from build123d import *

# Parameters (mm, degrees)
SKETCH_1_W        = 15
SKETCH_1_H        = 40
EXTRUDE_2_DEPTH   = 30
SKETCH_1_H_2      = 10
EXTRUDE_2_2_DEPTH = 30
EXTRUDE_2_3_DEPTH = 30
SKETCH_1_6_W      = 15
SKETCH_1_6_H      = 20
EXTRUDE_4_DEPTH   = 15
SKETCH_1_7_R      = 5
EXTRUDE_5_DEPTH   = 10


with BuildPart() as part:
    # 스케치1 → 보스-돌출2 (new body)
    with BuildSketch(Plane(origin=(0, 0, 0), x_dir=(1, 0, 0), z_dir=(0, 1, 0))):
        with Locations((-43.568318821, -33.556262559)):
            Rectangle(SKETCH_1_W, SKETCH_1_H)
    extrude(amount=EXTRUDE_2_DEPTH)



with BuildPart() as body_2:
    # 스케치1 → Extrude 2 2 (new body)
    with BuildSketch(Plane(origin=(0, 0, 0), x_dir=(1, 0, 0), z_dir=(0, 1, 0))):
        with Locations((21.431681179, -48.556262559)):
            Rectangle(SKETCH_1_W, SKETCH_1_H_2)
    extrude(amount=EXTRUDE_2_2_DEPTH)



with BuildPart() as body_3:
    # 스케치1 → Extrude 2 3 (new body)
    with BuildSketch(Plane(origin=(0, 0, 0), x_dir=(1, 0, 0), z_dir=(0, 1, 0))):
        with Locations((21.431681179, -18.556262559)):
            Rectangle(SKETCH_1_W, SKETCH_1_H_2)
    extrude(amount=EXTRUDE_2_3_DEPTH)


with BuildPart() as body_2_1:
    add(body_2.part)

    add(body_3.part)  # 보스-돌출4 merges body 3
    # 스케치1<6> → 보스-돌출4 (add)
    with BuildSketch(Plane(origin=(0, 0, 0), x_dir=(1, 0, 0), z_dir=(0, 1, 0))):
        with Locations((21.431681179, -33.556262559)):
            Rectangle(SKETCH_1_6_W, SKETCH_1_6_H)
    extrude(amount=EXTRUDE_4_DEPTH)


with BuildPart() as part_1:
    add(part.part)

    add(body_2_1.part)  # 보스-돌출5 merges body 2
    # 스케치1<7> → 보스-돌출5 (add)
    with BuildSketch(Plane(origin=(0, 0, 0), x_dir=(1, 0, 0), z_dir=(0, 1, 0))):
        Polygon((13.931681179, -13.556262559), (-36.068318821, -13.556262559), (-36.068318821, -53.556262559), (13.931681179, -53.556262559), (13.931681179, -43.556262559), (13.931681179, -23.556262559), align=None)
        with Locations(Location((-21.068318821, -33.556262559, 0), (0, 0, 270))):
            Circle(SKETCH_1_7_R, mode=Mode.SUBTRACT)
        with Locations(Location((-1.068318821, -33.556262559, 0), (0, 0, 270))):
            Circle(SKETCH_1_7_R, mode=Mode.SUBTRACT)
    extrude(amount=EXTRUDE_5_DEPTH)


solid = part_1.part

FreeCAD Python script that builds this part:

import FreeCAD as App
import Part
import Sketcher
from FreeCAD import Vector

doc = App.newDocument("Part")
body = doc.addObject("PartDesign::Body", "Body")

# Sketch on XZ plane
sketch1 = doc.addObject("Sketcher::SketchObject", "Sketch")
body.addObject(sketch1)
sketch1.AttachmentSupport = (doc.XZ_Plane, [""])
sketch1.MapMode = "FlatFace"
sketch1.addGeometry(Part.LineSegment(Vector(-51, 14, 0), Vector(-51, 54, 0)), False)
sketch1.addGeometry(Part.LineSegment(Vector(-51, 54, 0), Vector(-36, 54, 0)), False)
sketch1.addGeometry(Part.LineSegment(Vector(-36, 54, 0), Vector(-36, 14, 0)), False)
sketch1.addGeometry(Part.LineSegment(Vector(-36, 14, 0), Vector(-51, 14, 0)), False)
sketch1.addConstraint(Sketcher.Constraint("Coincident", 0, 2, 1, 1))
sketch1.addConstraint(Sketcher.Constraint("Coincident", 1, 2, 2, 1))
sketch1.addConstraint(Sketcher.Constraint("Coincident", 2, 2, 3, 1))
sketch1.addConstraint(Sketcher.Constraint("Coincident", 3, 2, 0, 1))
sketch1.addConstraint(Sketcher.Constraint("Vertical", 0))
sketch1.addConstraint(Sketcher.Constraint("Horizontal", 1))
sketch1.addConstraint(Sketcher.Constraint("Vertical", 2))
sketch1.addConstraint(Sketcher.Constraint("Horizontal", 3))
sketch1.addConstraint(Sketcher.Constraint("DistanceX", 1, 1, 1, 2, 15.0))
sketch1.addConstraint(Sketcher.Constraint("DistanceY", 0, 1, 0, 2, 40.0))
sketch1.addConstraint(Sketcher.Constraint("DistanceX", 0, 2, -1, 1, 51.068319))
sketch1.addConstraint(Sketcher.Constraint("DistanceY", -1, 1, 0, 2, 53.556263))
pad1 = doc.addObject("PartDesign::Pad", "Pad")
body.addObject(pad1)
pad1.Profile = sketch1
pad1.Length = 30
pad1.Reversed = True
body2 = doc.addObject("PartDesign::Body", "Body001")

# Sketch on XZ plane
sketch2 = doc.addObject("Sketcher::SketchObject", "Sketch001")
body2.addObject(sketch2)
sketch2.AttachmentSupport = (doc.getObject("XZ_Plane001"), [""])
sketch2.MapMode = "FlatFace"
sketch2.addGeometry(Part.LineSegment(Vector(14, 44, 0), Vector(14, 54, 0)), False)
sketch2.addGeometry(Part.LineSegment(Vector(14, 54, 0), Vector(29, 54, 0)), False)
sketch2.addGeometry(Part.LineSegment(Vector(29, 54, 0), Vector(29, 44, 0)), False)
sketch2.addGeometry(Part.LineSegment(Vector(29, 44, 0), Vector(14, 44, 0)), False)
sketch2.addConstraint(Sketcher.Constraint("Coincident", 0, 2, 1, 1))
sketch2.addConstraint(Sketcher.Constraint("Coincident", 1, 2, 2, 1))
sketch2.addConstraint(Sketcher.Constraint("Coincident", 2, 2, 3, 1))
sketch2.addConstraint(Sketcher.Constraint("Coincident", 3, 2, 0, 1))
sketch2.addConstraint(Sketcher.Constraint("Vertical", 0))
sketch2.addConstraint(Sketcher.Constraint("Horizontal", 1))
sketch2.addConstraint(Sketcher.Constraint("Vertical", 2))
sketch2.addConstraint(Sketcher.Constraint("Horizontal", 3))
sketch2.addConstraint(Sketcher.Constraint("DistanceX", 1, 1, 1, 2, 15.0))
sketch2.addConstraint(Sketcher.Constraint("DistanceY", 0, 1, 0, 2, 10.0))
sketch2.addConstraint(Sketcher.Constraint("DistanceX", -1, 1, 0, 2, 13.931681))
sketch2.addConstraint(Sketcher.Constraint("DistanceY", -1, 1, 0, 2, 53.556263))
pad2 = doc.addObject("PartDesign::Pad", "Pad001")
body2.addObject(pad2)
pad2.Profile = sketch2
pad2.Length = 30
pad2.Reversed = True
body3 = doc.addObject("PartDesign::Body", "Body002")

# Sketch on XZ plane
sketch3 = doc.addObject("Sketcher::SketchObject", "Sketch002")
body3.addObject(sketch3)
sketch3.AttachmentSupport = (doc.getObject("XZ_Plane002"), [""])
sketch3.MapMode = "FlatFace"
sketch3.addGeometry(Part.LineSegment(Vector(14, 14, 0), Vector(14, 24, 0)), False)
sketch3.addGeometry(Part.LineSegment(Vector(14, 24, 0), Vector(29, 24, 0)), False)
sketch3.addGeometry(Part.LineSegment(Vector(29, 24, 0), Vector(29, 14, 0)), False)
sketch3.addGeometry(Part.LineSegment(Vector(29, 14, 0), Vector(14, 14, 0)), False)
sketch3.addConstraint(Sketcher.Constraint("Coincident", 0, 2, 1, 1))
sketch3.addConstraint(Sketcher.Constraint("Coincident", 1, 2, 2, 1))
sketch3.addConstraint(Sketcher.Constraint("Coincident", 2, 2, 3, 1))
sketch3.addConstraint(Sketcher.Constraint("Coincident", 3, 2, 0, 1))
sketch3.addConstraint(Sketcher.Constraint("Vertical", 0))
sketch3.addConstraint(Sketcher.Constraint("Horizontal", 1))
sketch3.addConstraint(Sketcher.Constraint("Vertical", 2))
sketch3.addConstraint(Sketcher.Constraint("Horizontal", 3))
sketch3.addConstraint(Sketcher.Constraint("DistanceX", 1, 1, 1, 2, 15.0))
sketch3.addConstraint(Sketcher.Constraint("DistanceY", 0, 1, 0, 2, 10.0))
sketch3.addConstraint(Sketcher.Constraint("DistanceX", -1, 1, 0, 2, 13.931681))
sketch3.addConstraint(Sketcher.Constraint("DistanceY", -1, 1, 0, 2, 23.556263))
pad3 = doc.addObject("PartDesign::Pad", "Pad002")
body3.addObject(pad3)
pad3.Profile = sketch3
pad3.Length = 30
pad3.Reversed = True
body2.AllowCompound = True
doc.recompute()

boolean = doc.addObject("PartDesign::Boolean", "Boolean")
body2.addObject(boolean)
boolean.Type = "Fuse"
boolean.addObjects([body3])

# Sketch on XZ plane
sketch4 = doc.addObject("Sketcher::SketchObject", "Sketch003")
body2.addObject(sketch4)
sketch4.AttachmentSupport = (doc.getObject("XZ_Plane001"), [""])
sketch4.MapMode = "FlatFace"
sketch4.addGeometry(Part.LineSegment(Vector(14, 24, 0), Vector(14, 44, 0)), False)
sketch4.addGeometry(Part.LineSegment(Vector(14, 44, 0), Vector(29, 44, 0)), False)
sketch4.addGeometry(Part.LineSegment(Vector(29, 44, 0), Vector(29, 24, 0)), False)
sketch4.addGeometry(Part.LineSegment(Vector(29, 24, 0), Vector(14, 24, 0)), False)
sketch4.addConstraint(Sketcher.Constraint("Coincident", 0, 2, 1, 1))
sketch4.addConstraint(Sketcher.Constraint("Coincident", 1, 2, 2, 1))
sketch4.addConstraint(Sketcher.Constraint("Coincident", 2, 2, 3, 1))
sketch4.addConstraint(Sketcher.Constraint("Coincident", 3, 2, 0, 1))
sketch4.addConstraint(Sketcher.Constraint("Vertical", 0))
sketch4.addConstraint(Sketcher.Constraint("Horizontal", 1))
sketch4.addConstraint(Sketcher.Constraint("Vertical", 2))
sketch4.addConstraint(Sketcher.Constraint("Horizontal", 3))
sketch4.addConstraint(Sketcher.Constraint("DistanceX", 1, 1, 1, 2, 15.0))
sketch4.addConstraint(Sketcher.Constraint("DistanceY", 0, 1, 0, 2, 20.0))
sketch4.addConstraint(Sketcher.Constraint("DistanceX", -1, 1, 0, 2, 13.931681))
sketch4.addConstraint(Sketcher.Constraint("DistanceY", -1, 1, 0, 2, 43.556263))
pad4 = doc.addObject("PartDesign::Pad", "Pad003")
body2.addObject(pad4)
pad4.Profile = sketch4
pad4.Length = 15
pad4.Reversed = True
body.AllowCompound = True
doc.recompute()

boolean2 = doc.addObject("PartDesign::Boolean", "Boolean001")
body.addObject(boolean2)
boolean2.Type = "Fuse"
boolean2.addObjects([body2])

# Sketch on XZ plane
sketch5 = doc.addObject("Sketcher::SketchObject", "Sketch004")
body.addObject(sketch5)
sketch5.AttachmentSupport = (doc.XZ_Plane, [""])
sketch5.MapMode = "FlatFace"
sketch5.addGeometry(Part.LineSegment(Vector(14, 14, 0), Vector(-36, 14, 0)), False)
sketch5.addGeometry(Part.LineSegment(Vector(-36, 14, 0), Vector(-36, 54, 0)), False)
sketch5.addGeometry(Part.LineSegment(Vector(-36, 54, 0), Vector(14, 54, 0)), False)
sketch5.addGeometry(Part.LineSegment(Vector(14, 54, 0), Vector(14, 14, 0)), False)
sketch5.addGeometry(Part.Circle(Vector(-21, 34, 0), Vector(0, 0, 1), 5), False)
sketch5.addGeometry(Part.Circle(Vector(-1, 34, 0), Vector(0, 0, 1), 5), False)
sketch5.addConstraint(Sketcher.Constraint("Coincident", 0, 2, 1, 1))
sketch5.addConstraint(Sketcher.Constraint("Coincident", 1, 2, 2, 1))
sketch5.addConstraint(Sketcher.Constraint("Coincident", 2, 2, 3, 1))
sketch5.addConstraint(Sketcher.Constraint("Coincident", 3, 2, 0, 1))
sketch5.addConstraint(Sketcher.Constraint("Horizontal", 0))
sketch5.addConstraint(Sketcher.Constraint("Vertical", 1))
sketch5.addConstraint(Sketcher.Constraint("Horizontal", 2))
sketch5.addConstraint(Sketcher.Constraint("Vertical", 3))
sketch5.addConstraint(Sketcher.Constraint("Equal", 4, 5))
sketch5.addConstraint(Sketcher.Constraint("Horizontal", 4, 3, 5, 3))
sketch5.addConstraint(Sketcher.Constraint("Diameter", 4, 10.0))
sketch5.addConstraint(Sketcher.Constraint("DistanceX", 0, 2, 0, 1, 50.0))
sketch5.addConstraint(Sketcher.Constraint("DistanceY", 1, 1, 1, 2, 40.0))
sketch5.addConstraint(Sketcher.Constraint("DistanceX", 4, 3, 5, 3, 20.0))
sketch5.addConstraint(Sketcher.Constraint("DistanceX", 0, 2, 4, 3, 15.0))
sketch5.addConstraint(Sketcher.Constraint("DistanceY", 0, 2, 4, 3, 20.0))
sketch5.addConstraint(Sketcher.Constraint("DistanceX", 4, 3, -1, 1, 21.068319))
sketch5.addConstraint(Sketcher.Constraint("DistanceY", -1, 1, 4, 3, 33.556263))
pad5 = doc.addObject("PartDesign::Pad", "Pad004")
body.addObject(pad5)
pad5.Profile = sketch5
pad5.Length = 10
pad5.Reversed = True

doc.recompute()
